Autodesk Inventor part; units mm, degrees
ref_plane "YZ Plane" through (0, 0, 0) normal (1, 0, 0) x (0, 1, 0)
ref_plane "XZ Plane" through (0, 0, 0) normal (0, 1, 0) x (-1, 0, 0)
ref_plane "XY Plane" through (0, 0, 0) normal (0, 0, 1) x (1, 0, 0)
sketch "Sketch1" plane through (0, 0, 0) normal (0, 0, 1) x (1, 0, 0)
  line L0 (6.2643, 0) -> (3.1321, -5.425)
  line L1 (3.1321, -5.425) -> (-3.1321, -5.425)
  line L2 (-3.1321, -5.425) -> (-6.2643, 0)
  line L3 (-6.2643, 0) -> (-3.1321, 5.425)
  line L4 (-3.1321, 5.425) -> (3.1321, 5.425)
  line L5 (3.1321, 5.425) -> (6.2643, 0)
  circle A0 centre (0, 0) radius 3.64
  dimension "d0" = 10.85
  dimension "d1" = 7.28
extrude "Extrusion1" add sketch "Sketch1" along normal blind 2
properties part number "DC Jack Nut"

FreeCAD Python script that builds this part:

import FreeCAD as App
import Part
import Sketcher

V = App.Vector
Q = App.Units.Quantity

doc = App.newDocument("Part")
body = doc.addObject("PartDesign::Body", "Body")

# Sketch on XY plane
sketch1 = body.newObject("Sketcher::SketchObject", "Sketch")
sketch1.AttachmentSupport = (doc.getObject("XY_Plane"), [""])
sketch1.MapMode = "FlatFace"
sketch1.addGeometry(Part.LineSegment(V(3.1, -5.4, 0), V(6.3, 0, 0)), False)
sketch1.addGeometry(Part.LineSegment(V(6.3, 0, 0), V(3.1, 5.4, 0)), False)
sketch1.addGeometry(Part.LineSegment(V(3.1, 5.4, 0), V(-3.1, 5.4, 0)), False)
sketch1.addGeometry(Part.LineSegment(V(-3.1, 5.4, 0), V(-6.3, 0, 0)), False)
sketch1.addGeometry(Part.LineSegment(V(-6.3, 0, 0), V(-3.1, -5.4, 0)), False)
sketch1.addGeometry(Part.LineSegment(V(-3.1, -5.4, 0), V(3.1, -5.4, 0)), False)
sketch1.addGeometry(Part.Circle(V(0, 0, 0), V(0, 0, 1), 3.6), False)
sketch1.addConstraint(Sketcher.Constraint("Coincident", 0, 2, 1, 1))
sketch1.addConstraint(Sketcher.Constraint("Coincident", 1, 2, 2, 1))
sketch1.addConstraint(Sketcher.Constraint("Coincident", 2, 2, 3, 1))
sketch1.addConstraint(Sketcher.Constraint("Coincident", 3, 2, 4, 1))
sketch1.addConstraint(Sketcher.Constraint("Coincident", 4, 2, 5, 1))
sketch1.addConstraint(Sketcher.Constraint("Coincident", 5, 2, 0, 1))
sketch1.addConstraint(Sketcher.Constraint("Horizontal", 2))
sketch1.addConstraint(Sketcher.Constraint("Horizontal", 5))
sketch1.addConstraint(Sketcher.Constraint("Coincident", 6, 3, -1, 1))
sketch1.addConstraint(Sketcher.Constraint("Symmetric", 0, 2, 3, 2, -1, 1))
sketch1.addConstraint(Sketcher.Constraint("Symmetric", 1, 2, 4, 2, -1, 1))
sketch1.addConstraint(Sketcher.Constraint("PointOnObject", 0, 2, -1))
sketch1.addConstraint(Sketcher.Constraint("Parallel", 0, 3))
sketch1.addConstraint(Sketcher.Constraint("Vertical", 2, 2, 4, 2))
sketch1.addConstraint(Sketcher.Constraint("Diameter", 6, 7.28))
sketch1.addConstraint(Sketcher.Constraint("Angle", 0, Q("59.9994 deg")))
sketch1.addConstraint(Sketcher.Constraint("DistanceY", 4, 2, 2, 2, 10.85))
sketch1.addConstraint(Sketcher.Constraint("DistanceX", 2, 2, 2, 1, 6.2642))
pad1 = body.newObject("PartDesign::Pad", "Pad")
pad1.Profile = sketch1
pad1.Length = 2

doc.recompute()
